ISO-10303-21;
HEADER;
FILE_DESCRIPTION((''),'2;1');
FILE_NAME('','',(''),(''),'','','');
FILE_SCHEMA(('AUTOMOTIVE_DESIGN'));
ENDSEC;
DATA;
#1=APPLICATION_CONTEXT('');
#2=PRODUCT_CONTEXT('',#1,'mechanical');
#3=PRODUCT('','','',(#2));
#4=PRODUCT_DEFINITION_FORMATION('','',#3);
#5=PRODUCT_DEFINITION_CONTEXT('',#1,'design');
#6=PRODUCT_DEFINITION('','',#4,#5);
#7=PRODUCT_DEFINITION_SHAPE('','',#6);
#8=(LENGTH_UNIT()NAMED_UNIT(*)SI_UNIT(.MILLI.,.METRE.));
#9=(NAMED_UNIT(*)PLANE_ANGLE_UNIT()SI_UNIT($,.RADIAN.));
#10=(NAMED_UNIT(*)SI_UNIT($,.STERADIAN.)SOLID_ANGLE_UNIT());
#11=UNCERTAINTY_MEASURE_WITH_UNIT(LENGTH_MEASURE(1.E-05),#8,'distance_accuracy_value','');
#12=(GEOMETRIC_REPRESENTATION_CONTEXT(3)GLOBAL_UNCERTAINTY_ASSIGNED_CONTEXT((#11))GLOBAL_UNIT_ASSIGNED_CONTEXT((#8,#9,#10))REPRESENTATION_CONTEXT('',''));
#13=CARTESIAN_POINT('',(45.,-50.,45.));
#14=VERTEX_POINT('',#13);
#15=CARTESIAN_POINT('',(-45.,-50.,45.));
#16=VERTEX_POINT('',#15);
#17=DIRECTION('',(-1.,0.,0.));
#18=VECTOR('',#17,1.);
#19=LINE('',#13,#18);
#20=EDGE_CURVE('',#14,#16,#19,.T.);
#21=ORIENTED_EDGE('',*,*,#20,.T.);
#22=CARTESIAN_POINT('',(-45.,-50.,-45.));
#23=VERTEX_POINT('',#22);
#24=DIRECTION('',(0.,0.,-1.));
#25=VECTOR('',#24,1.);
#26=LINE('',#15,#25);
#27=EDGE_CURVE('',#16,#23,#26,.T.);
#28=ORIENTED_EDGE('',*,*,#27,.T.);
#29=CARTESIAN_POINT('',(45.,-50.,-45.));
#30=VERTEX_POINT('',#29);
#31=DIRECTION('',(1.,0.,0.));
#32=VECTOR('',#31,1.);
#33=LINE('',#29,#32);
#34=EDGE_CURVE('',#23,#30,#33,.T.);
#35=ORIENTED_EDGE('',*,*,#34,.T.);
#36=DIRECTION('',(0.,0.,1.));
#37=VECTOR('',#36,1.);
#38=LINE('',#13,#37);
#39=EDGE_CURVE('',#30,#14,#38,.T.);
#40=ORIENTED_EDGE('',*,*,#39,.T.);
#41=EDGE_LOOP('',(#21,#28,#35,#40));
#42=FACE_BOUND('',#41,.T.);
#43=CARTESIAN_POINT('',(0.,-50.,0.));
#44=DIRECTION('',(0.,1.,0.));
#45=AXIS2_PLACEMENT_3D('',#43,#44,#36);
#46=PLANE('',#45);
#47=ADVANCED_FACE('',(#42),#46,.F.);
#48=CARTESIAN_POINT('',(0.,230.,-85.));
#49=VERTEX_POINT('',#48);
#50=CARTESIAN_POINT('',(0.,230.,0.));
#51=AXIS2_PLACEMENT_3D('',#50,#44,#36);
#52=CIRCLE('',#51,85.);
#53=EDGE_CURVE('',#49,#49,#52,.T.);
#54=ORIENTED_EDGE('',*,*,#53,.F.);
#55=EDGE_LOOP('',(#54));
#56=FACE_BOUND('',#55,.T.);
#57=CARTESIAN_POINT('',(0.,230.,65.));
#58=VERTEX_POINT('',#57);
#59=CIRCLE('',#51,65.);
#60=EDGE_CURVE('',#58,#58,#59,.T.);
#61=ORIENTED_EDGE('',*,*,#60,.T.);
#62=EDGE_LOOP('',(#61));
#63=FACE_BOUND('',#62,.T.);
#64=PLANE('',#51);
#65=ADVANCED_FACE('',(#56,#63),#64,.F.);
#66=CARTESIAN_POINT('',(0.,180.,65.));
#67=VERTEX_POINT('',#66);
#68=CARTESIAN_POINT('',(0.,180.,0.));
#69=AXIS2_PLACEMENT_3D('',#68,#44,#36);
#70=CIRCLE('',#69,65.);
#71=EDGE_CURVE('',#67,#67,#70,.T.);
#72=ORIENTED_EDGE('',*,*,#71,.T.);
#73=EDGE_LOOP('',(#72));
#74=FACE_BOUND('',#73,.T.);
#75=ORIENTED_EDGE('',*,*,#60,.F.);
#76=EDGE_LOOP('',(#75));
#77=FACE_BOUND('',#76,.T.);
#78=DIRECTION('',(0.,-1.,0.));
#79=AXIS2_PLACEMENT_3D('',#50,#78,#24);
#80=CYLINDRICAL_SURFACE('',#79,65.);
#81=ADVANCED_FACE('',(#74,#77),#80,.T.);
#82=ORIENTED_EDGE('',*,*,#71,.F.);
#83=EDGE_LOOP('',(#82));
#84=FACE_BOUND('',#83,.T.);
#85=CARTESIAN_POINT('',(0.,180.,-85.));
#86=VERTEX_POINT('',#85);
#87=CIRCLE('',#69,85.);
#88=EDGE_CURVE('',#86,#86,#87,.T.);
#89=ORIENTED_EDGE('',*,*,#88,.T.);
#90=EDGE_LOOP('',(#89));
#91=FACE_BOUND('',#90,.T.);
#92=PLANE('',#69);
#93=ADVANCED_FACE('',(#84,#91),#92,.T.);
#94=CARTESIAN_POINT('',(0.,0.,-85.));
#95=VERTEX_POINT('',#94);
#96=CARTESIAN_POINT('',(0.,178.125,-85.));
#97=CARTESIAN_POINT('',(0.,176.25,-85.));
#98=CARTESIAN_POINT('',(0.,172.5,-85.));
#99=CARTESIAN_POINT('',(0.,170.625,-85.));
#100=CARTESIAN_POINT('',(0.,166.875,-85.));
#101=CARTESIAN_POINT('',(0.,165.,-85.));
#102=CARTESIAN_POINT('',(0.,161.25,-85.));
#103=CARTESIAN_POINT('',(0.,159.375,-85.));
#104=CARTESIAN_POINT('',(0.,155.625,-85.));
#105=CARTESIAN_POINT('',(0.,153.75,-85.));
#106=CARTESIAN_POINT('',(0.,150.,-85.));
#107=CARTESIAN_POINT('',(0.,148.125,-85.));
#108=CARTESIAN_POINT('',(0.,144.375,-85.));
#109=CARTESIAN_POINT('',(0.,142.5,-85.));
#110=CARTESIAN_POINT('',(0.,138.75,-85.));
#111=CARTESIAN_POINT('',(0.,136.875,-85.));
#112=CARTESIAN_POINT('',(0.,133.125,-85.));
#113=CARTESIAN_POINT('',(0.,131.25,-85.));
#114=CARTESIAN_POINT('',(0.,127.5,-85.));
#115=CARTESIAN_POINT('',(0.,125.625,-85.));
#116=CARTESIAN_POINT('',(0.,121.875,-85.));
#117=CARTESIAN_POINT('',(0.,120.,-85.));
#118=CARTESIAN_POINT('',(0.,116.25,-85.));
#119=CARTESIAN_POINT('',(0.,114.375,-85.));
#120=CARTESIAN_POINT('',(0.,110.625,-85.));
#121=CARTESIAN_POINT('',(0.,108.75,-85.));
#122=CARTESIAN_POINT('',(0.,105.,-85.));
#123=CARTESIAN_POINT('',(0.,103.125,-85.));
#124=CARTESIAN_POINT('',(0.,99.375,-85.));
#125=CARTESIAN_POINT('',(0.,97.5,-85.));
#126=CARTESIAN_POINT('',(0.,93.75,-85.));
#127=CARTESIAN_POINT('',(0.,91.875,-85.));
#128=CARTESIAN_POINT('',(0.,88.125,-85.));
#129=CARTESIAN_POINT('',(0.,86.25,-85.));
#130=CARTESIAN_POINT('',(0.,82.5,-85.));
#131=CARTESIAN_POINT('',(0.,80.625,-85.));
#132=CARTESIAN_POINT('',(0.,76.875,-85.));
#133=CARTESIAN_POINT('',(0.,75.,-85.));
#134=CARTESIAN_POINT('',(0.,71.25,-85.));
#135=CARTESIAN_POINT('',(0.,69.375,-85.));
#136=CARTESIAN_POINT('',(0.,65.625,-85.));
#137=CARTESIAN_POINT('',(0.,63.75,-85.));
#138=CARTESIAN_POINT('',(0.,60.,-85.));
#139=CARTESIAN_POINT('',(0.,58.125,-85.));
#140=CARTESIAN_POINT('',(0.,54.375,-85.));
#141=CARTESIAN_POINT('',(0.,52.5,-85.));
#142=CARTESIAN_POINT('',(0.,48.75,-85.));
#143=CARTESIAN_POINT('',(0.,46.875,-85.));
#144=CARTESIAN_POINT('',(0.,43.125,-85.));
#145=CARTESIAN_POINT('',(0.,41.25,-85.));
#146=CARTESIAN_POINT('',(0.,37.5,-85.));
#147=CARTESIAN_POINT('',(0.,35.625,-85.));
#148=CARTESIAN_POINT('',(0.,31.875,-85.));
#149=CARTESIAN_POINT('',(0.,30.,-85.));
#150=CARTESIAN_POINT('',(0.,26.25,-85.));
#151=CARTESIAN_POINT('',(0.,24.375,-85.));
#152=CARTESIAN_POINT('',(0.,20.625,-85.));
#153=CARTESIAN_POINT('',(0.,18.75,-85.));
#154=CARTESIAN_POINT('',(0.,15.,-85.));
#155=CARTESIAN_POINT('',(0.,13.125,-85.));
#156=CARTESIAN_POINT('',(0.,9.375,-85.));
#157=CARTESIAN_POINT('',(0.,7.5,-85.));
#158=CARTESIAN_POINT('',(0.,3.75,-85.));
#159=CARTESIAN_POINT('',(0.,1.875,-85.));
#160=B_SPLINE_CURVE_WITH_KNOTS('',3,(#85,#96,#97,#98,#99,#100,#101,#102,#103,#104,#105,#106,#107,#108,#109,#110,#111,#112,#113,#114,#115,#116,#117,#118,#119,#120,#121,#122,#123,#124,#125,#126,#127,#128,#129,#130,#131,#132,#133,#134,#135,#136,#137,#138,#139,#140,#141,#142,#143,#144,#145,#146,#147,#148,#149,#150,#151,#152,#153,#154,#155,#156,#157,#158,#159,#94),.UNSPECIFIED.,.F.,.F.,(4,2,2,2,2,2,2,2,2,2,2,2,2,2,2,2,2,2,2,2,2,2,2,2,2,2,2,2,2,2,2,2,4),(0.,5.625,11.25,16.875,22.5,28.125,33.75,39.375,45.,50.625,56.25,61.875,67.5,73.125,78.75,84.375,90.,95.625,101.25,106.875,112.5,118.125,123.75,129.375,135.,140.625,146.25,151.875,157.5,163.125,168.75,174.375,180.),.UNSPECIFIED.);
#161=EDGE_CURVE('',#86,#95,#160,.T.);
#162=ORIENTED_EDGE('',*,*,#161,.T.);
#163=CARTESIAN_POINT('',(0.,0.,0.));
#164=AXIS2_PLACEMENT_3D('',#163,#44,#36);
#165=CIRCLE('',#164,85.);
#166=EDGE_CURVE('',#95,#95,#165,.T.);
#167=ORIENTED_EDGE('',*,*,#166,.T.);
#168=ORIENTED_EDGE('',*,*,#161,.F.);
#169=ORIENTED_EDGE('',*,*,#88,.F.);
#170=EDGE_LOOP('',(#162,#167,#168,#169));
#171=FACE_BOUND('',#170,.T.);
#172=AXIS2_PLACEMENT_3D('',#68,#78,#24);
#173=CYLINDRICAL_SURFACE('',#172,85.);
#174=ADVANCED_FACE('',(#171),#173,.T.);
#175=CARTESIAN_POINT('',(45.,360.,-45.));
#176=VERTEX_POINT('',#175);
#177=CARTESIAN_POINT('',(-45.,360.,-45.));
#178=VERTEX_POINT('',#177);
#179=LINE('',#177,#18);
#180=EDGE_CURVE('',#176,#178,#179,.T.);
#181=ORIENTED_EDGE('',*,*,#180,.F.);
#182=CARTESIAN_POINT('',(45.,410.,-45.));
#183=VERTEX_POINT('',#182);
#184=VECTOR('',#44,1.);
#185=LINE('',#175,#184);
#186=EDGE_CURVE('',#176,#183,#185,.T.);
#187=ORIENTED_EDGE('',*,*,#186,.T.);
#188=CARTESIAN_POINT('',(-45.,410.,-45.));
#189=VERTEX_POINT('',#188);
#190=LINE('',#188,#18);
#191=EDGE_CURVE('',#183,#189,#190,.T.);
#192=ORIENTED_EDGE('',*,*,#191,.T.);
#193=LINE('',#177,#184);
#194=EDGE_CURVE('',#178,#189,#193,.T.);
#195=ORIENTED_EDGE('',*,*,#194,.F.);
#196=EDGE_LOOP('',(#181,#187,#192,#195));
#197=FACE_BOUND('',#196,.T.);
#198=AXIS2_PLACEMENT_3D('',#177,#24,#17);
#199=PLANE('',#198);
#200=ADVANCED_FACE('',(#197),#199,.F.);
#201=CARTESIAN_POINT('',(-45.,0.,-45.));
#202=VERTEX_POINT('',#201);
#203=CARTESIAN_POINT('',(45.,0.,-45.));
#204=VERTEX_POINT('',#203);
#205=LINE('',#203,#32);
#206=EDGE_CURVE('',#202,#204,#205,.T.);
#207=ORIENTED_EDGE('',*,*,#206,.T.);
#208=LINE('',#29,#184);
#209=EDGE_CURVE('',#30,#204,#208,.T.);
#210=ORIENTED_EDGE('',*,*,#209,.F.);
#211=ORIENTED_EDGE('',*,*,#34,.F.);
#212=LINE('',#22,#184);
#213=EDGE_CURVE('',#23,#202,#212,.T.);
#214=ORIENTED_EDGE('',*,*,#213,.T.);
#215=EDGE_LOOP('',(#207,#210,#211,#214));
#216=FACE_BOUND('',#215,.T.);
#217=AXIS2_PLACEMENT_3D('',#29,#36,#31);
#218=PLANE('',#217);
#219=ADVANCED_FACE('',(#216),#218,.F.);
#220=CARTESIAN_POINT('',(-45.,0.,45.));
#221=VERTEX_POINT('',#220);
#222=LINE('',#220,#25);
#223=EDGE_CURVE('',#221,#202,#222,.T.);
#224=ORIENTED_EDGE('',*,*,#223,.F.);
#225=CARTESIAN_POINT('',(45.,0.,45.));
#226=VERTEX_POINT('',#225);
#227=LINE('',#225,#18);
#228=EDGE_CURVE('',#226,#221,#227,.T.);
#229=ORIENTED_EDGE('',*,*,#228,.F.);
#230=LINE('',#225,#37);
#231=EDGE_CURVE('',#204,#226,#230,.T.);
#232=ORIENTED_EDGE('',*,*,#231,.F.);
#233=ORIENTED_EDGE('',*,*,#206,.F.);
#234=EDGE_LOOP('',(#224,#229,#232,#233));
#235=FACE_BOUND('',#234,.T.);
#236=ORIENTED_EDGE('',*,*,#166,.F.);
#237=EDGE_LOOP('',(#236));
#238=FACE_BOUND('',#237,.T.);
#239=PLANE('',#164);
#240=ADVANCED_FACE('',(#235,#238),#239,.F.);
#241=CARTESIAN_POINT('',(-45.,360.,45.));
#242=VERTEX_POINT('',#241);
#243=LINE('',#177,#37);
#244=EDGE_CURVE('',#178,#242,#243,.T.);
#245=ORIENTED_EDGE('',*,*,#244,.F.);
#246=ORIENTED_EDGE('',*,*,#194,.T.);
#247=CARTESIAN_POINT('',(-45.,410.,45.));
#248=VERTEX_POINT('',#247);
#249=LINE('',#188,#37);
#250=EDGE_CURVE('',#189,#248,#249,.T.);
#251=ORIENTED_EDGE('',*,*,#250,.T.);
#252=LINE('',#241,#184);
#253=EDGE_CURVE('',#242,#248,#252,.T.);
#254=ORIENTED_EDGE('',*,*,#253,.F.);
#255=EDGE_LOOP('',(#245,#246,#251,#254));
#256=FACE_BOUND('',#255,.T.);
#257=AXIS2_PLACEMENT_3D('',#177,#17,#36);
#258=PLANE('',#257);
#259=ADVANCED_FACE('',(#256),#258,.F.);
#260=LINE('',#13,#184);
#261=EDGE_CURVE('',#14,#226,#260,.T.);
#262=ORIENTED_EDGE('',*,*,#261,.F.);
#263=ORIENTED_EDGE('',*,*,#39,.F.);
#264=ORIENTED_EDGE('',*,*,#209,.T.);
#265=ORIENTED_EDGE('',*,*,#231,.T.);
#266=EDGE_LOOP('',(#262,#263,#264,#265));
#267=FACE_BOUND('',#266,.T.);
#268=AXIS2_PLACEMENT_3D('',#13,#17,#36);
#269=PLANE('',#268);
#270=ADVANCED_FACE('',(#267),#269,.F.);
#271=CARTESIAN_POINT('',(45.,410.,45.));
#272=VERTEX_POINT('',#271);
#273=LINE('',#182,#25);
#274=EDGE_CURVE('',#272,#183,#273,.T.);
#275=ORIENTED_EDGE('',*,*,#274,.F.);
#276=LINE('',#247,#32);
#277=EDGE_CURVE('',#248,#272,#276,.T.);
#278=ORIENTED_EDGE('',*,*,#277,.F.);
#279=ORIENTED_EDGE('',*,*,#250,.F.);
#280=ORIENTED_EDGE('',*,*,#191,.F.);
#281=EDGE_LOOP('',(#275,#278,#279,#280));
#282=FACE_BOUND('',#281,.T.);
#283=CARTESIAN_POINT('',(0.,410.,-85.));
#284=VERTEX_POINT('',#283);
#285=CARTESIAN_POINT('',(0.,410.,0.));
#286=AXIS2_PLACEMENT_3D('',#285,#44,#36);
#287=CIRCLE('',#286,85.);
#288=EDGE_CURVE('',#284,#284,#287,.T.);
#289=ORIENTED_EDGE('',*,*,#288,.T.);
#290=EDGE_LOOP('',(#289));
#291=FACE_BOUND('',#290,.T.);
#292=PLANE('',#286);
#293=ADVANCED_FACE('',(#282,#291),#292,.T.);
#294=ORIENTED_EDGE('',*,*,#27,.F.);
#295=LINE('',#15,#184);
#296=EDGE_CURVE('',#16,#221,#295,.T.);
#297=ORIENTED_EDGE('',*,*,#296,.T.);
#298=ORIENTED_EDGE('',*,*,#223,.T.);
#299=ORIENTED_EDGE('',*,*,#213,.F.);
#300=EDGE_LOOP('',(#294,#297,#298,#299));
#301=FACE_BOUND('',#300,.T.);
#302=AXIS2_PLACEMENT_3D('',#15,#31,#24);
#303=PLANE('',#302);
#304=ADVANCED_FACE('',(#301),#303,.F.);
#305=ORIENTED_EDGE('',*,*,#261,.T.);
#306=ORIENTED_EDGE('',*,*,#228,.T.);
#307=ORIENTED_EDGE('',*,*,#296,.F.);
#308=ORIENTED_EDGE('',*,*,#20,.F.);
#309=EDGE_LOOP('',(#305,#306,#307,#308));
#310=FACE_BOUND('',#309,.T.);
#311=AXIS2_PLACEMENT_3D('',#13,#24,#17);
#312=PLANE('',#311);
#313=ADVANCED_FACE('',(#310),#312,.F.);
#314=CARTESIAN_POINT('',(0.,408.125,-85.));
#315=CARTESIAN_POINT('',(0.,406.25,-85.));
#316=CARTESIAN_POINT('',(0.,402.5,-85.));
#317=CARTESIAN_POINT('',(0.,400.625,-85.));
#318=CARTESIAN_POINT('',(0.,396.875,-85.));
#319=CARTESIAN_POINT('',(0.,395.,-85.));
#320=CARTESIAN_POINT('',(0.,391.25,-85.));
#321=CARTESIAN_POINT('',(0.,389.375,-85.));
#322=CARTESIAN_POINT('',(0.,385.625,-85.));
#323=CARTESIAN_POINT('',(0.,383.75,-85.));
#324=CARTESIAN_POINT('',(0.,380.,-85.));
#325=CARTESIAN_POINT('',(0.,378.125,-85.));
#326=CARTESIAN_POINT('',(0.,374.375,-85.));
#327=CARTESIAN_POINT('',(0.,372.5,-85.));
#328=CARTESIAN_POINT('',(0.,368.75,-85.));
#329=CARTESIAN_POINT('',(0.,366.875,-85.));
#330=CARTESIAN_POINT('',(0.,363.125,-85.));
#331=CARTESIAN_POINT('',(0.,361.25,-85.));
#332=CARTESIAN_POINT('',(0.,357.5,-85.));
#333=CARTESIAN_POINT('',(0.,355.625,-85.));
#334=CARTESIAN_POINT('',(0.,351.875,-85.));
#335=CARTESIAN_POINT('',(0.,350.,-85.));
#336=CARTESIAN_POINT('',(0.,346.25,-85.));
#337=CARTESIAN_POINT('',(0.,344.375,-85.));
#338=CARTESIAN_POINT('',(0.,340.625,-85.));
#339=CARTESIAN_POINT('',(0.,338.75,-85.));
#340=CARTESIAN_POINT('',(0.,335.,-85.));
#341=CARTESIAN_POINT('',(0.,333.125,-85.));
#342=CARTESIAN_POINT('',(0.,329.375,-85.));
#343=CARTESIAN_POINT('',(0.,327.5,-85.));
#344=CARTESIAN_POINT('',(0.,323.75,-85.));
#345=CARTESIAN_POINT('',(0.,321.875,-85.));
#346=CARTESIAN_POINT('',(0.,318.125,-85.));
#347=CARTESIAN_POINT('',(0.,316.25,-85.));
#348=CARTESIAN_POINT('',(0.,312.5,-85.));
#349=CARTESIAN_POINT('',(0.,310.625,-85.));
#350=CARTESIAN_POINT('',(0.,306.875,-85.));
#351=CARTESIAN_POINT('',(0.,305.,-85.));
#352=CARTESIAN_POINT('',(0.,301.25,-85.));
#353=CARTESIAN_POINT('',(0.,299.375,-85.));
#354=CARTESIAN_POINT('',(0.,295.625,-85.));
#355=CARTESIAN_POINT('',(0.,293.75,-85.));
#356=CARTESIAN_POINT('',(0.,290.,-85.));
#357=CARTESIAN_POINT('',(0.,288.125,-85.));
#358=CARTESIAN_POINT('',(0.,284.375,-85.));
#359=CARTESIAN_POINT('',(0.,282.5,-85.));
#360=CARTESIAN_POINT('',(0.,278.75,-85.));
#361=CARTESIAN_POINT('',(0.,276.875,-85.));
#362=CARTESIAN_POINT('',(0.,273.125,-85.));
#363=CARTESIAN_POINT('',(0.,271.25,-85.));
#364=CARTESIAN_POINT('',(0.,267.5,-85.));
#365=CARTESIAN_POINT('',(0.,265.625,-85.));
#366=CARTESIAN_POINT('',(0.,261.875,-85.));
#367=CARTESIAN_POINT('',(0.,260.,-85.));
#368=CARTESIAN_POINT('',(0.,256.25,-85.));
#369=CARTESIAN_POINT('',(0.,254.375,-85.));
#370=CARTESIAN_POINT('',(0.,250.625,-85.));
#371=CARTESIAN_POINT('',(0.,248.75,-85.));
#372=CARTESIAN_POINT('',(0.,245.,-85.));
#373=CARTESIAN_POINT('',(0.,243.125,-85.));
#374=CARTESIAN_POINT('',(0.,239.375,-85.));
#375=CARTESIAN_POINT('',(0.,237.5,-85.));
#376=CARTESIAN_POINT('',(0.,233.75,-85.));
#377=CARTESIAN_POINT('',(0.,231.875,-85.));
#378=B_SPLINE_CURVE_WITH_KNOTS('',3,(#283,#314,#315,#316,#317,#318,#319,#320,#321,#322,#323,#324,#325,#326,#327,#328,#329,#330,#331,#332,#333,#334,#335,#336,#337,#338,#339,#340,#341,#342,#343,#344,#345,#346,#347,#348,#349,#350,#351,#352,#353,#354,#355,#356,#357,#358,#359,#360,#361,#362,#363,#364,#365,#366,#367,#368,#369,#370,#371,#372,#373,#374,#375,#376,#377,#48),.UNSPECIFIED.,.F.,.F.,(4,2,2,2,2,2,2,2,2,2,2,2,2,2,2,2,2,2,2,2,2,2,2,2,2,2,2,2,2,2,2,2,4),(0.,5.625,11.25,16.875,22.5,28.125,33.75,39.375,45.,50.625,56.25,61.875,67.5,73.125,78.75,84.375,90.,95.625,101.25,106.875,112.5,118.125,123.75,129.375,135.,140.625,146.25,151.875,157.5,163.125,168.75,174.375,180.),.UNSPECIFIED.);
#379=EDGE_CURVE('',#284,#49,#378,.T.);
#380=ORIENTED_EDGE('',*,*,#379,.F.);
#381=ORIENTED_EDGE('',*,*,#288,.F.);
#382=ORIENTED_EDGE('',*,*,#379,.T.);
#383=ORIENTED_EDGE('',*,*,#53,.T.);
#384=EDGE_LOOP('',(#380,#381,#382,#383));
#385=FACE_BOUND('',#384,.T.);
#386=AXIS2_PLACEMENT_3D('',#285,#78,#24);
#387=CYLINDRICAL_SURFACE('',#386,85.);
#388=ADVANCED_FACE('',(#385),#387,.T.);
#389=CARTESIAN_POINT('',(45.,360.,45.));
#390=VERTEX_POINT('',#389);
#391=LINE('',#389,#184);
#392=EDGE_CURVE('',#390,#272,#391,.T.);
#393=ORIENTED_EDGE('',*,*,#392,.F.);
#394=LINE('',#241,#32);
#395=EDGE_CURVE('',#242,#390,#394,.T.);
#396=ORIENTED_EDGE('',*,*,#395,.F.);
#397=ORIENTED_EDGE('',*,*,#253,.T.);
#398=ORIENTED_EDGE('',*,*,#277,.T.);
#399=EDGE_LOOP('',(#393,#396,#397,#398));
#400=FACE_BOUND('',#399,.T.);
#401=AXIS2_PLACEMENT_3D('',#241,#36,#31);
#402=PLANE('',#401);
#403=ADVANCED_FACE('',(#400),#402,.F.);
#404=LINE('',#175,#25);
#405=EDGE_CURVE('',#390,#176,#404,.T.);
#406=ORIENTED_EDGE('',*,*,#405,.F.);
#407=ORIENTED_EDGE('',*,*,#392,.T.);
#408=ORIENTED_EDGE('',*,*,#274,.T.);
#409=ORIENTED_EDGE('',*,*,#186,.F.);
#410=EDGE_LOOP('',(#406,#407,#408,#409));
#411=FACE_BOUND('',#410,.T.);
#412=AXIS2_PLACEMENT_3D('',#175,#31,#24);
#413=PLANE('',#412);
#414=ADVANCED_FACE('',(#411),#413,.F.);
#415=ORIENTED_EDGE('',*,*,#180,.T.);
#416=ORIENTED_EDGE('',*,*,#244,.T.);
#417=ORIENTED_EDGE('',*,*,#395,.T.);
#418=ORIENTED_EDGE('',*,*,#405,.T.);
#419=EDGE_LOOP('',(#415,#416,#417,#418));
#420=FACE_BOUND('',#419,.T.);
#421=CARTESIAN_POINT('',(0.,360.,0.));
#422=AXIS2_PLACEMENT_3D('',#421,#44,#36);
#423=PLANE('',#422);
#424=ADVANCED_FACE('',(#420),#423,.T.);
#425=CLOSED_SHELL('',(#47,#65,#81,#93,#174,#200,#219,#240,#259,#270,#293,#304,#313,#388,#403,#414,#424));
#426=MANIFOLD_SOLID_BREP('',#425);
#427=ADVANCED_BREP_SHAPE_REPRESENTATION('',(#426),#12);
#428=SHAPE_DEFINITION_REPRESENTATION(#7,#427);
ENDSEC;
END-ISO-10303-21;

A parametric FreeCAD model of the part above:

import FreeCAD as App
import Part
import Sketcher

V = App.Vector

doc = App.newDocument("Part")
body = doc.addObject("PartDesign::Body", "Body")

# Sketch on XZ plane
sketch1 = body.newObject("Sketcher::SketchObject", "Sketch")
sketch1.AttachmentSupport = (doc.getObject("XZ_Plane"), [""])
sketch1.MapMode = "FlatFace"
sketch1.addGeometry(Part.Circle(V(0, 0, 0), V(0, 0, 1), 85), False)
sketch1.addConstraint([
    Sketcher.Constraint("Coincident", 0, 3, -1, 1),
    Sketcher.Constraint("Diameter", 0, 170.0),
])
pad1 = body.newObject("PartDesign::Pad", "Pad")
pad1.Profile = sketch1
pad1.Length = 180
pad1.Reversed = True

# Sketch on XZ plane
sketch2 = body.newObject("Sketcher::SketchObject", "Sketch001")
sketch2.AttachmentSupport = (doc.getObject("XZ_Plane"), [""])
sketch2.MapMode = "FlatFace"
sketch2.addGeometry([
    Part.LineSegment(V(-45, 45, 0), V(-45, -45, 0)),
    Part.LineSegment(V(-45, -45, 0), V(45, -45, 0)),
    Part.LineSegment(V(45, -45, 0), V(45, 45, 0)),
    Part.LineSegment(V(45, 45, 0), V(-45, 45, 0)),
], False)
sketch2.addConstraint([
    Sketcher.Constraint("Coincident", 0, 2, 1, 1),
    Sketcher.Constraint("Coincident", 1, 2, 2, 1),
    Sketcher.Constraint("Coincident", 2, 2, 3, 1),
    Sketcher.Constraint("Coincident", 3, 2, 0, 1),
    Sketcher.Constraint("Vertical", 0),
    Sketcher.Constraint("Horizontal", 1),
    Sketcher.Constraint("Vertical", 2),
    Sketcher.Constraint("Horizontal", 3),
    Sketcher.Constraint("Symmetric", 0, 2, 2, 2, -1, 1),
    Sketcher.Constraint("Equal", 3, 0),
    Sketcher.Constraint("DistanceX", 1, 1, 1, 2, 90.0),
])
pad2 = body.newObject("PartDesign::Pad", "Pad001")
pad2.Profile = sketch2
pad2.Length = 50

# Sketch on XZ plane
sketch3 = body.newObject("Sketcher::SketchObject", "Sketch002")
sketch3.AttachmentSupport = (doc.getObject("XZ_Plane"), [""])
sketch3.MapMode = "FlatFace"
sketch3.AttachmentOffset = App.Placement(V(0, 0, -180), App.Rotation())
sketch3.addGeometry(Part.Circle(V(0, 0, 0), V(0, 0, 1), 65), False)
sketch3.addConstraint([
    Sketcher.Constraint("Coincident", 0, 3, -1, 1),
    Sketcher.Constraint("Diameter", 0, 130.0),
])
pad3 = body.newObject("PartDesign::Pad", "Pad002")
pad3.Profile = sketch3
pad3.Length = 50
pad3.Reversed = True

# Sketch on XZ plane
sketch4 = body.newObject("Sketcher::SketchObject", "Sketch003")
sketch4.AttachmentSupport = (doc.getObject("XZ_Plane"), [""])
sketch4.MapMode = "FlatFace"
sketch4.AttachmentOffset = App.Placement(V(0, 0, -230), App.Rotation())
sketch4.addGeometry(Part.Circle(V(0, 0, 0), V(0, 0, 1), 85), False)
sketch4.addConstraint([
    Sketcher.Constraint("Coincident", 0, 3, -1, 1),
    Sketcher.Constraint("Diameter", 0, 170.0),
])
pad4 = body.newObject("PartDesign::Pad", "Pad003")
pad4.Profile = sketch4
pad4.Length = 180
pad4.Reversed = True

# Sketch on XZ plane
sketch5 = body.newObject("Sketcher::SketchObject", "Sketch004")
sketch5.AttachmentSupport = (doc.getObject("XZ_Plane"), [""])
sketch5.MapMode = "FlatFace"
sketch5.AttachmentOffset = App.Placement(V(0, 0, -410), App.Rotation())
sketch5.addGeometry([
    Part.LineSegment(V(-45, -45, 0), V(-45, 45, 0)),
    Part.LineSegment(V(-45, 45, 0), V(45, 45, 0)),
    Part.LineSegment(V(45, 45, 0), V(45, -45, 0)),
    Part.LineSegment(V(45, -45, 0), V(-45, -45, 0)),
], False)
sketch5.addConstraint([
    Sketcher.Constraint("Coincident", 0, 2, 1, 1),
    Sketcher.Constraint("Coincident", 1, 2, 2, 1),
    Sketcher.Constraint("Coincident", 2, 2, 3, 1),
    Sketcher.Constraint("Coincident", 3, 2, 0, 1),
    Sketcher.Constraint("Vertical", 0),
    Sketcher.Constraint("Horizontal", 1),
    Sketcher.Constraint("Vertical", 2),
    Sketcher.Constraint("Horizontal", 3),
    Sketcher.Constraint("Symmetric", 0, 2, 2, 2, -1, 1),
    Sketcher.Constraint("Equal", 3, 0),
    Sketcher.Constraint("DistanceX", 1, 1, 1, 2, 90.0),
])
pocket1 = body.newObject("PartDesign::Pocket", "Pocket")
pocket1.Profile = sketch5
pocket1.Length = 50
pocket1.Reversed = True

doc.recompute()
